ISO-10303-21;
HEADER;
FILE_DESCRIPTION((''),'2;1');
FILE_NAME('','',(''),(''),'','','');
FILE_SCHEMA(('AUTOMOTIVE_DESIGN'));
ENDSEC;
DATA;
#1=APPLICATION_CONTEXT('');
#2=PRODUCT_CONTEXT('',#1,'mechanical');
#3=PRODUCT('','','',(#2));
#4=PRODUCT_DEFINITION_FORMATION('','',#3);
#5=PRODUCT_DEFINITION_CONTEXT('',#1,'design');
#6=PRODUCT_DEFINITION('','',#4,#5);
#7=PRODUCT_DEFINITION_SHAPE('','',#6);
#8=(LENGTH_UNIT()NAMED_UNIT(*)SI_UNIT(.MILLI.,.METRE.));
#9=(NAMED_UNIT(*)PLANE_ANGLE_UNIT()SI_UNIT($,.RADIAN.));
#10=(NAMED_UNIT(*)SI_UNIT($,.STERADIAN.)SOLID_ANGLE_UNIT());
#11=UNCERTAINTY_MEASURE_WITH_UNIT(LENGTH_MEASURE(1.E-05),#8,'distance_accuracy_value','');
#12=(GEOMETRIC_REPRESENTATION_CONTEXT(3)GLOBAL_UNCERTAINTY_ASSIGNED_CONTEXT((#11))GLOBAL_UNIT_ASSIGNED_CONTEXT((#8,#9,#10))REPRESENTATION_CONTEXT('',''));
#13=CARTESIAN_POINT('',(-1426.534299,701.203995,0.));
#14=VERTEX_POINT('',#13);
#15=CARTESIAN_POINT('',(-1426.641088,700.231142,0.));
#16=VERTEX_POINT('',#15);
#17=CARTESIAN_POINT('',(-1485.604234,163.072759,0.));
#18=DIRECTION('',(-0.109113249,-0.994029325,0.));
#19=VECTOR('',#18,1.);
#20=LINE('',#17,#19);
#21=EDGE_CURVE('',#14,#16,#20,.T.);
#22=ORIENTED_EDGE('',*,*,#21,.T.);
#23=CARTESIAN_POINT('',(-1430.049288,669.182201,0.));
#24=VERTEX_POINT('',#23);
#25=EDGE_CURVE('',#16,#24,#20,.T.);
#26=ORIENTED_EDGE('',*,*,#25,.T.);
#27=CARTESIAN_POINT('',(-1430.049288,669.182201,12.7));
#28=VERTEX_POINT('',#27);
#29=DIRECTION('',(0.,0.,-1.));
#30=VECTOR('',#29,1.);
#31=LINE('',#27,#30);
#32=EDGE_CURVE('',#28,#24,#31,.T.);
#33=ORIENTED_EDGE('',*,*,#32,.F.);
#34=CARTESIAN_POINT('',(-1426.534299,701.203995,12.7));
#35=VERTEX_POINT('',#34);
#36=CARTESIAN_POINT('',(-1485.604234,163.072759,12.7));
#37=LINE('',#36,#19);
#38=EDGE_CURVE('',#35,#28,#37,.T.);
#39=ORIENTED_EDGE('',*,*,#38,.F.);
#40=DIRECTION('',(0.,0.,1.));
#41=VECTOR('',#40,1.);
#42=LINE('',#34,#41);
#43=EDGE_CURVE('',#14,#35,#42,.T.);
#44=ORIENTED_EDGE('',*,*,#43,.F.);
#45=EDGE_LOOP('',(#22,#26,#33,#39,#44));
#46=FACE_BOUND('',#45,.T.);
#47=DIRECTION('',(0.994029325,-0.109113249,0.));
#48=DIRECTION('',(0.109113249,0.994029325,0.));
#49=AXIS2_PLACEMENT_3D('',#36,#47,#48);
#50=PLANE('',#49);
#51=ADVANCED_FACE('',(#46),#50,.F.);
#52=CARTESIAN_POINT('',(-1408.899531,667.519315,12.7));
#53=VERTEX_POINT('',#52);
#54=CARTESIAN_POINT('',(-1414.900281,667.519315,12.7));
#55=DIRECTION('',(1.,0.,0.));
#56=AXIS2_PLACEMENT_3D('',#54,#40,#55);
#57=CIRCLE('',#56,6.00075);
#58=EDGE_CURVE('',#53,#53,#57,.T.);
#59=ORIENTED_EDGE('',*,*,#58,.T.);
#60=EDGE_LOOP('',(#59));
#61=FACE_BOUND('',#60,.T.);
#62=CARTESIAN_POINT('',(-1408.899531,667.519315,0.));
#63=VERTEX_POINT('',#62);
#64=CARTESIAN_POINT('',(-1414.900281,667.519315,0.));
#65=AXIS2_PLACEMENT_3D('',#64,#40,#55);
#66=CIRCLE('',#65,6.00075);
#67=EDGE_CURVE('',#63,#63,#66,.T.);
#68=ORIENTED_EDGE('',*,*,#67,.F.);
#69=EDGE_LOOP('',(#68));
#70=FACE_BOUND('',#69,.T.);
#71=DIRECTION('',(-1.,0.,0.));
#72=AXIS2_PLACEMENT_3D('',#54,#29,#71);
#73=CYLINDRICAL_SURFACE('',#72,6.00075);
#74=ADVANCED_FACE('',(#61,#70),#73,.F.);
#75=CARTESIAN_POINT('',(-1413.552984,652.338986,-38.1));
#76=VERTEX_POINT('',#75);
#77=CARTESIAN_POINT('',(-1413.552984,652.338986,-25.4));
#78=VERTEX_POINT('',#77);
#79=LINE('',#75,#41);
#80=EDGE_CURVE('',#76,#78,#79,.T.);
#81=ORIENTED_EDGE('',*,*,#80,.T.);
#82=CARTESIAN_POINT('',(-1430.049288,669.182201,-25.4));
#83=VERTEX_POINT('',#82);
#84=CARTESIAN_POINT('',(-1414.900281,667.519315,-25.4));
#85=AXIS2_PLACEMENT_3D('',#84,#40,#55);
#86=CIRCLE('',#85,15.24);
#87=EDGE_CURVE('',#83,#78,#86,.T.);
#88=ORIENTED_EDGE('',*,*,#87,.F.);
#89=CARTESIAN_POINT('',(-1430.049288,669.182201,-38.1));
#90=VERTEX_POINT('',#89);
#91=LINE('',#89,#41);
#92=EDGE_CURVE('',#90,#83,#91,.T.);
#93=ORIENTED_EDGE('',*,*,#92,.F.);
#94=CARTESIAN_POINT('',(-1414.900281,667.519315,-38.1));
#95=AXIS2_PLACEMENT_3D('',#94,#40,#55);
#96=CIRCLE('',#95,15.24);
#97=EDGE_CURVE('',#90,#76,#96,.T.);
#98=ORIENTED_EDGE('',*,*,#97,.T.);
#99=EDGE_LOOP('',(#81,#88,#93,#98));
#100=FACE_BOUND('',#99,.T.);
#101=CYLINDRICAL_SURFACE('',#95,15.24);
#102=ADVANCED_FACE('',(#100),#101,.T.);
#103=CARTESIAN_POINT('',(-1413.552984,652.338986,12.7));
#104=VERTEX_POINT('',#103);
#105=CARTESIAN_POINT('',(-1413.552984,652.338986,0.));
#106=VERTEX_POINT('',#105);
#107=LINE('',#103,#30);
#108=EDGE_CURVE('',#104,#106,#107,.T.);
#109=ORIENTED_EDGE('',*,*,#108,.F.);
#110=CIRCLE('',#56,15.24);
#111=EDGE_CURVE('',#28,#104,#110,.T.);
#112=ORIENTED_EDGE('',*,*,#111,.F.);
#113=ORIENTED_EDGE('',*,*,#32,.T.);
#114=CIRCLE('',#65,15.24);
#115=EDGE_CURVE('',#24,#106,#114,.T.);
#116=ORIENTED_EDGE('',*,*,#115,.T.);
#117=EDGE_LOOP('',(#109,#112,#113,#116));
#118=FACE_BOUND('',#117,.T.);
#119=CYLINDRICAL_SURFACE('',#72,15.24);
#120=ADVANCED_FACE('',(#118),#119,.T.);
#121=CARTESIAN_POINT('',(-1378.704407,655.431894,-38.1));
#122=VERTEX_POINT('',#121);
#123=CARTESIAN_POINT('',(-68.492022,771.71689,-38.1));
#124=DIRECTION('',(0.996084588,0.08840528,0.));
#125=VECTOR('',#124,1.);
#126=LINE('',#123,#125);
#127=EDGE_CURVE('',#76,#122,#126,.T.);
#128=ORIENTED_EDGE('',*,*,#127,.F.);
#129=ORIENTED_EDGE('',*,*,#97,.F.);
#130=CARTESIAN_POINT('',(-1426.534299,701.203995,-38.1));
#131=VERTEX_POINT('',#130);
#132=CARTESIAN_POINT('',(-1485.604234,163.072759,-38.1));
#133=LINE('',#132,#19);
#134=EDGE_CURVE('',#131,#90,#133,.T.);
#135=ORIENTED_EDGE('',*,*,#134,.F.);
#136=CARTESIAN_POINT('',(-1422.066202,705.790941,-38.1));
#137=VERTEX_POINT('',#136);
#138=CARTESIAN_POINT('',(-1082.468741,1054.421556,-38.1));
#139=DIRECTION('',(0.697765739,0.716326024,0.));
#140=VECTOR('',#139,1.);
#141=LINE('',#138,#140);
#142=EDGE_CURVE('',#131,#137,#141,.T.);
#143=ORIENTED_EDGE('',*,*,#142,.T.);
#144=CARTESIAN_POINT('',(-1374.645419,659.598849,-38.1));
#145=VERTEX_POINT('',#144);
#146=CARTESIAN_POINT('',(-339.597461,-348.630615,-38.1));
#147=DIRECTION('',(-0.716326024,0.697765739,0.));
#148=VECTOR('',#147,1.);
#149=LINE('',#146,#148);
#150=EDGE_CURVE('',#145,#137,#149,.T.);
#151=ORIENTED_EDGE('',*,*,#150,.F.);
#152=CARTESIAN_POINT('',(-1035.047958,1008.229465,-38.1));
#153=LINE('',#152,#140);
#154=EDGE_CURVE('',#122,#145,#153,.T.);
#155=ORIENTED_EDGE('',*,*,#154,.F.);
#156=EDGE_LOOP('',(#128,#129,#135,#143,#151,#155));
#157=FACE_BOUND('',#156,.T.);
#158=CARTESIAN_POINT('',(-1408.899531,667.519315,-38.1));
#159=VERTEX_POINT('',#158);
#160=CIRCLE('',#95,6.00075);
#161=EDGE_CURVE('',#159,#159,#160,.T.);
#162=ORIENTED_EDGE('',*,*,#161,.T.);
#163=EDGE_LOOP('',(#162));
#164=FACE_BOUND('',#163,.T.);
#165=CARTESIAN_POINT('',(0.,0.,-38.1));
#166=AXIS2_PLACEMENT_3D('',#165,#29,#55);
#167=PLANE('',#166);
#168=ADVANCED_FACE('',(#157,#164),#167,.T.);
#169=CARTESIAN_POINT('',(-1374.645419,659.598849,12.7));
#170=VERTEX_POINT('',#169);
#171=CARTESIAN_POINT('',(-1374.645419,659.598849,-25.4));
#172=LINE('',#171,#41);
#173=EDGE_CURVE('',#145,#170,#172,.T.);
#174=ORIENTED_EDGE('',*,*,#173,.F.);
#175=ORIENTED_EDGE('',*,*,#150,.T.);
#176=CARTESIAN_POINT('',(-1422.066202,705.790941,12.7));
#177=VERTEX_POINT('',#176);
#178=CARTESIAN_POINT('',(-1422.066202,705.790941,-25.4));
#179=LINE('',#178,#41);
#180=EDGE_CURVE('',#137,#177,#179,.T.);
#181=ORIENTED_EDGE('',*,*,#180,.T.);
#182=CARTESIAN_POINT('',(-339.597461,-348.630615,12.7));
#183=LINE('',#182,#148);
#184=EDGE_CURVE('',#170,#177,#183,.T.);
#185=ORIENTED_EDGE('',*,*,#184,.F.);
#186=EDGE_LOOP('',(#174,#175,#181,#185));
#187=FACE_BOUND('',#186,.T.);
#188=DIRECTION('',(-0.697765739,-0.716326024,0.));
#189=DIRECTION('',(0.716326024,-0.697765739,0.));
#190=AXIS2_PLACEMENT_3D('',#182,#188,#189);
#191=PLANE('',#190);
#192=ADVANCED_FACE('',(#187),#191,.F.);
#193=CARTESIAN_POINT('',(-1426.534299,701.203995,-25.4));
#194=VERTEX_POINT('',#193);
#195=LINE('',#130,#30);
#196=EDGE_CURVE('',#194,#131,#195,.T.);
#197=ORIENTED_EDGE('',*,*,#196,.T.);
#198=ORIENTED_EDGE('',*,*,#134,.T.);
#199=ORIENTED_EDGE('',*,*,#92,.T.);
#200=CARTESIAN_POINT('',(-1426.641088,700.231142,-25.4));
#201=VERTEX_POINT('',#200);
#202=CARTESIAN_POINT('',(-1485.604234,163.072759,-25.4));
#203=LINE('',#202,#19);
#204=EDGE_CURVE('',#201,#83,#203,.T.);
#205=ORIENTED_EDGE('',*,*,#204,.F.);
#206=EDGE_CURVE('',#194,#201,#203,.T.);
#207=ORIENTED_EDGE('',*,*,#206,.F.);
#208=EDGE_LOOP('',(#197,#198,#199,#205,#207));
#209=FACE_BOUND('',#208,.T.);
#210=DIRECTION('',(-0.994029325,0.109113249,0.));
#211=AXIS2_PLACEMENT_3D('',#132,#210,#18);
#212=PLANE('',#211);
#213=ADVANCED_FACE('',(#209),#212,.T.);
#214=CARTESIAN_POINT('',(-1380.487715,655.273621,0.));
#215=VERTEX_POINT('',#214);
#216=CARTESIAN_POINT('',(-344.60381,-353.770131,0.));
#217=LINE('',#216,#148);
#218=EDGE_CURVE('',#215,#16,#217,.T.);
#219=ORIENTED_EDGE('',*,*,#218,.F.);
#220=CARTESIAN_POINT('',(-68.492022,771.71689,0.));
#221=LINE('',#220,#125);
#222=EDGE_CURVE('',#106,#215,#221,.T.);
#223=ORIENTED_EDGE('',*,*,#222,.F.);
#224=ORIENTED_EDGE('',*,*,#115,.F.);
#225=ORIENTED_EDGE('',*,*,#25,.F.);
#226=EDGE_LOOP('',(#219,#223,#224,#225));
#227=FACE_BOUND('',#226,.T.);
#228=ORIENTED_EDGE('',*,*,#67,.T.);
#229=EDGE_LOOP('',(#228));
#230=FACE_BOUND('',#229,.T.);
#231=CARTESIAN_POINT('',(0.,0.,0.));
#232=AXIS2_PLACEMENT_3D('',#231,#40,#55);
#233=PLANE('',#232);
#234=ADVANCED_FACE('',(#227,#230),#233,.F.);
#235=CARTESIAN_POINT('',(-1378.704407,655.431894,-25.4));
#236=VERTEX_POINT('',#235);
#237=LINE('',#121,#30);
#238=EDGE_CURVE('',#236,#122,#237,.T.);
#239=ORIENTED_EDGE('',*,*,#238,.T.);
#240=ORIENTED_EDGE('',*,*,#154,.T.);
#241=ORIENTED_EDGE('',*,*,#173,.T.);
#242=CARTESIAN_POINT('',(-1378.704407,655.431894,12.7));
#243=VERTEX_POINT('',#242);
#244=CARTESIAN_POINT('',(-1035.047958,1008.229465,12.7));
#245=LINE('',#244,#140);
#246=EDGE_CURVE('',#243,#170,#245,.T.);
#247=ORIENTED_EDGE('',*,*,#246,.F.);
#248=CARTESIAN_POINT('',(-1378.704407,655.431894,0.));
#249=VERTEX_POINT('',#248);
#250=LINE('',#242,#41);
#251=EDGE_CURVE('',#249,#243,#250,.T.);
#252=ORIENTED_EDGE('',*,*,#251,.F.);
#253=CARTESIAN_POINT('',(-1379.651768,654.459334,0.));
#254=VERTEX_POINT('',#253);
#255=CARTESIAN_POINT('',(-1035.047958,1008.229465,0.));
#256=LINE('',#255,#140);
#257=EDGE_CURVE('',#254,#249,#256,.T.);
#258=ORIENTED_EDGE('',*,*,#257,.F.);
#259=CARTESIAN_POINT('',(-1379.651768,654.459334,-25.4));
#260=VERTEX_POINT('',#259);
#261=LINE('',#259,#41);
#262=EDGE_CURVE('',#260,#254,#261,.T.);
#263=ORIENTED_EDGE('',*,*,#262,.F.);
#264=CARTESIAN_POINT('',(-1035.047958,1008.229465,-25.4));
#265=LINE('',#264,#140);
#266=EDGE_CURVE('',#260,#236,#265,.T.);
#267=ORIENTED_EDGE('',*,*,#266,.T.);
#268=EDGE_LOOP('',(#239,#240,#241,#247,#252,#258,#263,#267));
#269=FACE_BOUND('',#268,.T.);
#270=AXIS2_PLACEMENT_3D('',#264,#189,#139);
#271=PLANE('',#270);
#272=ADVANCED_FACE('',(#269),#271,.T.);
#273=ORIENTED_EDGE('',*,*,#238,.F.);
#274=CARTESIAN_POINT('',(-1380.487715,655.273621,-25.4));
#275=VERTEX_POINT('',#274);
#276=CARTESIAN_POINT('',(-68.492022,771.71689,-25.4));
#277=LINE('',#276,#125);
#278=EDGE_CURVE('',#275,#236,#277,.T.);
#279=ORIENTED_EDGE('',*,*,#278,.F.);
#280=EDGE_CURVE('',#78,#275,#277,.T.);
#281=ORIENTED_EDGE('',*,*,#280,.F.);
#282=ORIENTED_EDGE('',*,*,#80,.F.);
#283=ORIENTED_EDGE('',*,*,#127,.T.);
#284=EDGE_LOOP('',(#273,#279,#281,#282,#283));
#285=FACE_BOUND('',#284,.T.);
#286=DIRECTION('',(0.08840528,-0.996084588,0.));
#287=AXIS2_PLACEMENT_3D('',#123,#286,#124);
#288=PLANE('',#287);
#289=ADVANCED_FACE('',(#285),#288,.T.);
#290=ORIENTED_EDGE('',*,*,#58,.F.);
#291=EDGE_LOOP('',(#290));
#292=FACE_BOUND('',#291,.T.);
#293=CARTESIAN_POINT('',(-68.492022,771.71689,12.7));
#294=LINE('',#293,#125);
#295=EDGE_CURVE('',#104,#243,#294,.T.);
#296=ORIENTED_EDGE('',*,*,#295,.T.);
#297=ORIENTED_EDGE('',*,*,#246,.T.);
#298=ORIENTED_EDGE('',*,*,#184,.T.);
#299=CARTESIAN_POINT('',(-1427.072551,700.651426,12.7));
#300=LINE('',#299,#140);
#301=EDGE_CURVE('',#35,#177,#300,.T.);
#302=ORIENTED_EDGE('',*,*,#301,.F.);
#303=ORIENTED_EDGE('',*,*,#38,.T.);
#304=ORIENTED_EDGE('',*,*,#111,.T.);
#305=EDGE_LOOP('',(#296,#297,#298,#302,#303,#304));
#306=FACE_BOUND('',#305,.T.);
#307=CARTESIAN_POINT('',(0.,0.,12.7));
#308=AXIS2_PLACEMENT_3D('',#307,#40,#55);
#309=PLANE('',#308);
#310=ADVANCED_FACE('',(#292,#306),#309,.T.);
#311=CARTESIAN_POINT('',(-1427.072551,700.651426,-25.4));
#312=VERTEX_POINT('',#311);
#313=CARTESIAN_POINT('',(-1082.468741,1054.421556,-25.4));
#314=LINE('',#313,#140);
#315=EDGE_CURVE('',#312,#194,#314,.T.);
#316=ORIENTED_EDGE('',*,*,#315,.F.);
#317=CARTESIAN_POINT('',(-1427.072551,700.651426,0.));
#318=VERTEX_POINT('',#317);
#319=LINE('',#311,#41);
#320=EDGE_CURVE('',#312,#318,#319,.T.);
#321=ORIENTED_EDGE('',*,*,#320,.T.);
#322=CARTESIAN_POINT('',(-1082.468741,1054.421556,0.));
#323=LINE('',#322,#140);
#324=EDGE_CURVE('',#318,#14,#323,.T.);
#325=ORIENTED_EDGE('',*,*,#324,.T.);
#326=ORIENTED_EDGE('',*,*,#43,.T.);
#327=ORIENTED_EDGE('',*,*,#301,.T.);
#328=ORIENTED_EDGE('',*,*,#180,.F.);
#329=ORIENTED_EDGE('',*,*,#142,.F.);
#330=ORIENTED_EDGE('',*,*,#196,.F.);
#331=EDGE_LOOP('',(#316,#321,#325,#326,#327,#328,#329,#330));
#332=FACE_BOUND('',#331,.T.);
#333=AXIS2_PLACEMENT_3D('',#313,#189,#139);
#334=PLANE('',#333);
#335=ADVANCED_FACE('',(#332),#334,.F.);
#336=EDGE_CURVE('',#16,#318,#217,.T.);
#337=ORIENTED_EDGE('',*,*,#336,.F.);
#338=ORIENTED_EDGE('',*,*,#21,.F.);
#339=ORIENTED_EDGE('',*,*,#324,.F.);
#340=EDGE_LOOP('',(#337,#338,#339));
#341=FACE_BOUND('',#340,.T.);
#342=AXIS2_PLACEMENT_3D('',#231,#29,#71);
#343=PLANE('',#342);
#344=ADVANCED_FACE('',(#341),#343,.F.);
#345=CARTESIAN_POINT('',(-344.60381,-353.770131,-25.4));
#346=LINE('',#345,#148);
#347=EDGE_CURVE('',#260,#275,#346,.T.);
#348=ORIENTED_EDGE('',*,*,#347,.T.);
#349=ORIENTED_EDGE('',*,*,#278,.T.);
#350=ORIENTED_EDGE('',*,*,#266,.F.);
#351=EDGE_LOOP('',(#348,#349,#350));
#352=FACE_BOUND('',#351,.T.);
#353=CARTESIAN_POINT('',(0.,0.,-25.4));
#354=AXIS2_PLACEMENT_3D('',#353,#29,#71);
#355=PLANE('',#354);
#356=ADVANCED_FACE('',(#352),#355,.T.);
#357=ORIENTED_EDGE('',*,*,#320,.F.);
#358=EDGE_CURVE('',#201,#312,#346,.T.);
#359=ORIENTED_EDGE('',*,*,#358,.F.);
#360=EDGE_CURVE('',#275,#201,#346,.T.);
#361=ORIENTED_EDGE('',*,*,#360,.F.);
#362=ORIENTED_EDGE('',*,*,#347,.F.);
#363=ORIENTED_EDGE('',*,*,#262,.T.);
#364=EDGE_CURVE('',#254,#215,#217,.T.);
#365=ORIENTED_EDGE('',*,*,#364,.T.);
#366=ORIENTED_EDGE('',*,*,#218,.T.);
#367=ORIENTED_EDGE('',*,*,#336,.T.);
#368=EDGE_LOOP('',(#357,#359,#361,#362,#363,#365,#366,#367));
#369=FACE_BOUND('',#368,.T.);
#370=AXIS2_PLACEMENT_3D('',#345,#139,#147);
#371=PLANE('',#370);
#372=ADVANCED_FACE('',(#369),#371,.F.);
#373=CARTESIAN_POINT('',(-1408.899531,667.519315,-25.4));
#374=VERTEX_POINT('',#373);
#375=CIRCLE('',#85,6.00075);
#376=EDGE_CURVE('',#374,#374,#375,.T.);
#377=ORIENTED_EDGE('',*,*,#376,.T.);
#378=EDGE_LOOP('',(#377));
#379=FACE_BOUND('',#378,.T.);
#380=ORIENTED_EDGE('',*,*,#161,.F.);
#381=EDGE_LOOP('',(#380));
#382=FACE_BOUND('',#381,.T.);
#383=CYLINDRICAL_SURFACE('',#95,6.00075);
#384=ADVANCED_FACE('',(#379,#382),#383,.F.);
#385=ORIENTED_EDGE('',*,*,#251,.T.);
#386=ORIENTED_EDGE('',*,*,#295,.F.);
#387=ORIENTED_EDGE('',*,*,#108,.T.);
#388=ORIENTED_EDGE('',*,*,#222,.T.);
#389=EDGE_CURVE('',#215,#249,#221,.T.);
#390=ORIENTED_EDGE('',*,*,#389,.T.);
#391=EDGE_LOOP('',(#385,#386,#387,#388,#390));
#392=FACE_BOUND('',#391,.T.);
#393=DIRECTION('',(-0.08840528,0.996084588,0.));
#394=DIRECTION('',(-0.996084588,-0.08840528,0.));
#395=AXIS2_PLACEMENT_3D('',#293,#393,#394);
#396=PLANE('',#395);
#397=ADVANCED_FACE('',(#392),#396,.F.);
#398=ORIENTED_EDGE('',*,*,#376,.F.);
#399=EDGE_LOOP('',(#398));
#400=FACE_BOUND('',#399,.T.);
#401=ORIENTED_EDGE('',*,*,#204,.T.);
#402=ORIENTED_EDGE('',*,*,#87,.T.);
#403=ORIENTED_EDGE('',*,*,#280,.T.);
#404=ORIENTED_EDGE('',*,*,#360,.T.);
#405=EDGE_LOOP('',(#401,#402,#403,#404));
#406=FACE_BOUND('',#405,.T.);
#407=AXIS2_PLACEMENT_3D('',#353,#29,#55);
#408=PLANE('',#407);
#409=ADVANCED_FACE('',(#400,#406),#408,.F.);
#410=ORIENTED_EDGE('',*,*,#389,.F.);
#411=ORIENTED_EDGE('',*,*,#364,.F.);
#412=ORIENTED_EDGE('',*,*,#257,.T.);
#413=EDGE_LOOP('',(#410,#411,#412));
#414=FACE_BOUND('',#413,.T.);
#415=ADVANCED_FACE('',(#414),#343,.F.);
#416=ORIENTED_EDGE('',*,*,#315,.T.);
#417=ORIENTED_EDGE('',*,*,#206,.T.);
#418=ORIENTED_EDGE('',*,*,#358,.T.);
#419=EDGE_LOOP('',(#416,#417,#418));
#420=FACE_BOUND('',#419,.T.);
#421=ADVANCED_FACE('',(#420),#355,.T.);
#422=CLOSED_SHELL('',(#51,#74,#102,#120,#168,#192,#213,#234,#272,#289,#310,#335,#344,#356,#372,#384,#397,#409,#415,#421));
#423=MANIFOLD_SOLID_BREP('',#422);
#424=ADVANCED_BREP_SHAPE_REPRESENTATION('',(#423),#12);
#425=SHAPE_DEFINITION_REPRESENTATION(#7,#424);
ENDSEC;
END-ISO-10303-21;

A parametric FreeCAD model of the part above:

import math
import FreeCAD as App
import Part
import Sketcher
from FreeCAD import Vector
Q = App.Units.Quantity


def add_polygon(sketch, points):
    """Adds a closed chain of lines whose ends are joined by coincident constraints."""
    first, n = sketch.GeometryCount, len(points)
    for a, b in zip(points, points[1:] + points[:1]):
        sketch.addGeometry(Part.LineSegment(App.Vector(*a, 0), App.Vector(*b, 0)), False)
    for i in range(n):
        sketch.addConstraint(Sketcher.Constraint("Coincident", first + i, 2, first + (i + 1) % n, 1))

doc = App.newDocument("Part")
body = doc.addObject("PartDesign::Body", "Body")

# Sketch on XY plane
sketch1 = body.newObject("Sketcher::SketchObject", "Sketch")
sketch1.AttachmentSupport = (doc.getObject("XY_Plane"), [""])
sketch1.MapMode = "FlatFace"
sketch1.addGeometry([
    Part.LineSegment(Vector(-1371, 656, 0), Vector(-1426, 709, 0)),  # 0
    Part.LineSegment(Vector(-1426, 709, 0), Vector(-1430, 669, 0)),  # 1
    Part.ArcOfCircle(Part.Circle(Vector(-1415, 668, 0), Vector(0, 0, 1), 15), math.radians(174), math.radians(275)),  # 2
    Part.LineSegment(Vector(-1414, 652, 0), Vector(-1371, 656, 0)),  # 3
    Part.Circle(Vector(-1415, 668, 0), Vector(0, 0, 1), 6),  # 4
], False)
sketch1.addConstraint([
    Sketcher.Constraint("Coincident", 0, 2, 1, 1),
    Sketcher.Constraint("Tangent", 1, 2, 2, 1),
    Sketcher.Constraint("Tangent", 2, 2, 3, 1),
    Sketcher.Constraint("Coincident", 3, 2, 0, 1),
    Sketcher.Constraint("Coincident", 4, 3, 2, 3),
    Sketcher.Constraint("Radius", 2, Q("15.24 mm")),
    Sketcher.Constraint("Distance", 0, Q("76.2 mm")),
    Sketcher.Constraint("Diameter", 4, Q("12.0015 mm")),
    Sketcher.Constraint("DistanceY", -1, 1, 1, 2, Q("669.182201 mm")),
    Sketcher.Constraint("DistanceX", 1, 2, 3, 2, Q("58.985499 mm")),
    Sketcher.Constraint("Distance", 3, Q("42.656212 mm")),
    Sketcher.Constraint("DistanceX", 2, 3, -1, 1, Q("1414.900281 mm")),
    Sketcher.Constraint("DistanceY", -1, 1, 0, 2, Q("709.27977 mm")),
])
pad1 = body.newObject("PartDesign::Pad", "Pad")
pad1.Profile = sketch1
pad1.Length = 12.7

# Sketch on XY plane
sketch2 = body.newObject("Sketcher::SketchObject", "Sketch001")
sketch2.AttachmentSupport = (doc.getObject("XY_Plane"), [""])
sketch2.MapMode = "FlatFace"
sketch2.AttachmentOffset = App.Placement(Vector(0, 0, -12.7), App.Rotation())
add_polygon(sketch2, [(-1422, 706), (-1375, 660), (-1380, 654), (-1404, 678), (-1427, 701)])  # lines 0-4
sketch2.addConstraint([
    Sketcher.Constraint("Perpendicular", 0, 1),
    Sketcher.Constraint("Perpendicular", 1, 2),
    Sketcher.Constraint("Parallel", 2, 3),
    Sketcher.Constraint("Perpendicular", 3, 4),
    Sketcher.Constraint("Distance", 0, Q("66.2 mm")),
    Sketcher.Constraint("DistanceX", 0, 2, -1, 1, Q("1374.645419 mm")),
    Sketcher.Constraint("DistanceY", -1, 1, 0, 2, Q("659.598849 mm")),
    Sketcher.Constraint("DistanceX", 2, 2, -1, 1, Q("1404.266329 mm")),
    Sketcher.Constraint("DistanceX", 3, 2, -1, 1, Q("1427.072551 mm")),
    Sketcher.Constraint("DistanceY", -1, 1, 4, 2, Q("705.790941 mm")),
])
pad2 = body.newObject("PartDesign::Pad", "Pad001")
pad2.Profile = sketch2
pad2.Length = 25.4
pad2.Midplane = True
doc.recompute()

datumplane = body.newObject("PartDesign::Plane", "DatumPlane")
datumplane.AttachmentSupport = (doc.getObject("XY_Plane"), [""])
datumplane.MapMode = "FlatFace"
datumplane.AttachmentOffset = App.Placement(Vector(0, 0, -12.7), App.Rotation())
mirrored = body.newObject("PartDesign::Mirrored", "Mirrored")
mirrored.Originals = [pad1]
mirrored.MirrorPlane = (datumplane, [""])
body.Tip = mirrored

# Sketch on XY plane
sketch3 = body.newObject("Sketcher::SketchObject", "Sketch002")
sketch3.AttachmentSupport = (doc.getObject("XY_Plane"), [""])
sketch3.MapMode = "FlatFace"
sketch3.AttachmentOffset = App.Placement(Vector(0, 0, -12.7), App.Rotation())
add_polygon(sketch3, [(-1371.1, 656.1), (-1376.1, 651), (-1379.7, 654.5), (-1374.6, 659.6)])  # lines 0-3
add_polygon(sketch3, [(-1427.1, 700.7), (-1430.7, 704.1), (-1425.6, 709.3), (-1422.1, 705.8)])  # lines 4-7
sketch3.addConstraint([
    Sketcher.Constraint("Perpendicular", 0, 1),
    Sketcher.Constraint("Perpendicular", 1, 2),
    Sketcher.Constraint("Perpendicular", 2, 3),
    Sketcher.Constraint("Parallel", 3, 4),
    Sketcher.Constraint("Perpendicular", 4, 5),
    Sketcher.Constraint("Perpendicular", 5, 6),
    Sketcher.Constraint("Perpendicular", 6, 7),
    Sketcher.Constraint("Equal", 3, 4),
    Sketcher.Constraint("Equal", 2, 5),
    Sketcher.Constraint("Distance", 1, Q("5 mm")),
    Sketcher.Constraint("DistanceX", 2, 2, -1, 1, Q("1374.645419 mm")),
    Sketcher.Constraint("DistanceY", -1, 1, 2, 2, Q("659.598849 mm")),
    Sketcher.Constraint("DistanceX", 3, 2, -1, 1, Q("1371.063789 mm")),
    Sketcher.Constraint("DistanceX", 4, 2, -1, 1, Q("1430.654181 mm")),
    Sketcher.Constraint("DistanceY", -1, 1, 5, 2, Q("709.27977 mm")),
    Sketcher.Constraint("DistanceX", 1, 2, 2, 2, Q("5.006349 mm")),
])
pocket1 = body.newObject("PartDesign::Pocket", "Pocket")
pocket1.Profile = sketch3
pocket1.Type = "ThroughAll"
pocket1.Midplane = True

doc.recompute()
